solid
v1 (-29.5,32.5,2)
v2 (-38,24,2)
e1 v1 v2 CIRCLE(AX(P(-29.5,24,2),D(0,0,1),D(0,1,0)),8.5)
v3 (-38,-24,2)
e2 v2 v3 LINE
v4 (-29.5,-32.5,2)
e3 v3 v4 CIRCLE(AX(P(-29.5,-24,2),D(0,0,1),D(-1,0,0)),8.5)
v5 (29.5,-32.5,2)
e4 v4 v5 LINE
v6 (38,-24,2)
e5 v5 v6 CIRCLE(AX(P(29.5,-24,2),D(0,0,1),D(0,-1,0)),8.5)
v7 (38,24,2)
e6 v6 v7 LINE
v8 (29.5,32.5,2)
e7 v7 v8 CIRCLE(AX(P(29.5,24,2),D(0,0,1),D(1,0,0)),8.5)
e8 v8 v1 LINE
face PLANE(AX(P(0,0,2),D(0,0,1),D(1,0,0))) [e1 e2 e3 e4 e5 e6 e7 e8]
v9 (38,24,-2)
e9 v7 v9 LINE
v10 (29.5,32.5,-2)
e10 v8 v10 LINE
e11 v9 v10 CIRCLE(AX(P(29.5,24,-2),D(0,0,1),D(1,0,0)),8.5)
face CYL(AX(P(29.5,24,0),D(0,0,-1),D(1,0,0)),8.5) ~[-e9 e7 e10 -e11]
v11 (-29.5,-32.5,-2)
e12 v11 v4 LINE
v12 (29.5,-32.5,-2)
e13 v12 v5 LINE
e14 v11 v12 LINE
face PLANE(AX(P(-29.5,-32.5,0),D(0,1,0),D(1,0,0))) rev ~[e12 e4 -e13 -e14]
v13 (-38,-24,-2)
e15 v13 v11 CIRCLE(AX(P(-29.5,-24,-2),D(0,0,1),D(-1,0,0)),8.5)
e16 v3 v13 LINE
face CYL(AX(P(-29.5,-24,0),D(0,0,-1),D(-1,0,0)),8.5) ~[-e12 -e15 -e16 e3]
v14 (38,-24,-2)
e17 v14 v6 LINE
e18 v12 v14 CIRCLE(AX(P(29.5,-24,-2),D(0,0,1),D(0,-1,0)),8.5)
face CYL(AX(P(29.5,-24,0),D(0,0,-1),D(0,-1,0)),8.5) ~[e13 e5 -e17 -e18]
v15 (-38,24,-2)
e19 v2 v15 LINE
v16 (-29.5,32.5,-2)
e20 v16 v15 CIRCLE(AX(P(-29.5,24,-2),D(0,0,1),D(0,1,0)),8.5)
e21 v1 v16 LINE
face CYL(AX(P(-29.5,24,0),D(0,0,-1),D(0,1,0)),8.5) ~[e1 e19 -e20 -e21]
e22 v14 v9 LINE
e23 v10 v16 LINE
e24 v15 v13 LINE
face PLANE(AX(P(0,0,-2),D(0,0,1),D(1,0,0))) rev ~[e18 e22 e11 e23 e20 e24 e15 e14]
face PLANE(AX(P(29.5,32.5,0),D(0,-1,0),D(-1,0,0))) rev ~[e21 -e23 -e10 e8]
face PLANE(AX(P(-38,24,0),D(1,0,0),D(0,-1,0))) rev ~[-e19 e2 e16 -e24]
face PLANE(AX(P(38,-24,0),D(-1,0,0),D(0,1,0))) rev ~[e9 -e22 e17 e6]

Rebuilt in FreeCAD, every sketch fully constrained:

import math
import FreeCAD as App
import Part
import Sketcher

V = App.Vector
Q = App.Units.Quantity

doc = App.newDocument("Part")
body = doc.addObject("PartDesign::Body", "Body")

sketch1 = doc.addObject("Sketcher::SketchObject", "Sketch")
body.addObject(sketch1)
sketch1.AttachmentSupport = (doc.XY_Plane, [""])
sketch1.MapMode = "FlatFace"
sketch1.addGeometry([
    Part.ArcOfCircle(Part.Circle(V(-30, -24, 0), V(0, 0, 1), 8), math.radians(180), math.radians(270)),
    Part.LineSegment(V(-30, -32, 0), V(30, -32, 0)),
    Part.ArcOfCircle(Part.Circle(V(30, -24, 0), V(0, 0, 1), 8), math.radians(-90), math.radians(0)),
    Part.LineSegment(V(38, -24, 0), V(38, 24, 0)),
    Part.ArcOfCircle(Part.Circle(V(30, 24, 0), V(0, 0, 1), 8), math.radians(0), math.radians(90)),
    Part.LineSegment(V(30, 32, 0), V(-30, 32, 0)),
    Part.ArcOfCircle(Part.Circle(V(-30, 24, 0), V(0, 0, 1), 8), math.radians(90), math.radians(180)),
    Part.LineSegment(V(-38, 24, 0), V(-38, -24, 0)),
], False)
sketch1.addConstraint([
    Sketcher.Constraint("Tangent", 0, 2, 1, 1),
    Sketcher.Constraint("Tangent", 1, 2, 2, 1),
    Sketcher.Constraint("Tangent", 2, 2, 3, 1),
    Sketcher.Constraint("Tangent", 3, 2, 4, 1),
    Sketcher.Constraint("Tangent", 4, 2, 5, 1),
    Sketcher.Constraint("Tangent", 5, 2, 6, 1),
    Sketcher.Constraint("Tangent", 6, 2, 7, 1),
    Sketcher.Constraint("Tangent", 7, 2, 0, 1),
    Sketcher.Constraint("Horizontal", 1),
    Sketcher.Constraint("Vertical", 3),
    Sketcher.Constraint("Horizontal", 5),
    Sketcher.Constraint("Vertical", 7),
    Sketcher.Constraint("Equal", 0, 2),
    Sketcher.Constraint("Equal", 2, 4),
    Sketcher.Constraint("Equal", 4, 6),
    Sketcher.Constraint("Symmetric", 0, 3, 4, 3, -1, 1),
    Sketcher.Constraint("Radius", 0, Q("8.5 mm")),
    Sketcher.Constraint("DistanceY", 0, 2, 5, 2, Q("65 mm")),
    Sketcher.Constraint("DistanceX", 1, 1, 1, 2, Q("59 mm")),
])
pad1 = doc.addObject("PartDesign::Pad", "Pad")
body.addObject(pad1)
pad1.Profile = sketch1
pad1.Length = 4
pad1.Midplane = True

doc.recompute()
